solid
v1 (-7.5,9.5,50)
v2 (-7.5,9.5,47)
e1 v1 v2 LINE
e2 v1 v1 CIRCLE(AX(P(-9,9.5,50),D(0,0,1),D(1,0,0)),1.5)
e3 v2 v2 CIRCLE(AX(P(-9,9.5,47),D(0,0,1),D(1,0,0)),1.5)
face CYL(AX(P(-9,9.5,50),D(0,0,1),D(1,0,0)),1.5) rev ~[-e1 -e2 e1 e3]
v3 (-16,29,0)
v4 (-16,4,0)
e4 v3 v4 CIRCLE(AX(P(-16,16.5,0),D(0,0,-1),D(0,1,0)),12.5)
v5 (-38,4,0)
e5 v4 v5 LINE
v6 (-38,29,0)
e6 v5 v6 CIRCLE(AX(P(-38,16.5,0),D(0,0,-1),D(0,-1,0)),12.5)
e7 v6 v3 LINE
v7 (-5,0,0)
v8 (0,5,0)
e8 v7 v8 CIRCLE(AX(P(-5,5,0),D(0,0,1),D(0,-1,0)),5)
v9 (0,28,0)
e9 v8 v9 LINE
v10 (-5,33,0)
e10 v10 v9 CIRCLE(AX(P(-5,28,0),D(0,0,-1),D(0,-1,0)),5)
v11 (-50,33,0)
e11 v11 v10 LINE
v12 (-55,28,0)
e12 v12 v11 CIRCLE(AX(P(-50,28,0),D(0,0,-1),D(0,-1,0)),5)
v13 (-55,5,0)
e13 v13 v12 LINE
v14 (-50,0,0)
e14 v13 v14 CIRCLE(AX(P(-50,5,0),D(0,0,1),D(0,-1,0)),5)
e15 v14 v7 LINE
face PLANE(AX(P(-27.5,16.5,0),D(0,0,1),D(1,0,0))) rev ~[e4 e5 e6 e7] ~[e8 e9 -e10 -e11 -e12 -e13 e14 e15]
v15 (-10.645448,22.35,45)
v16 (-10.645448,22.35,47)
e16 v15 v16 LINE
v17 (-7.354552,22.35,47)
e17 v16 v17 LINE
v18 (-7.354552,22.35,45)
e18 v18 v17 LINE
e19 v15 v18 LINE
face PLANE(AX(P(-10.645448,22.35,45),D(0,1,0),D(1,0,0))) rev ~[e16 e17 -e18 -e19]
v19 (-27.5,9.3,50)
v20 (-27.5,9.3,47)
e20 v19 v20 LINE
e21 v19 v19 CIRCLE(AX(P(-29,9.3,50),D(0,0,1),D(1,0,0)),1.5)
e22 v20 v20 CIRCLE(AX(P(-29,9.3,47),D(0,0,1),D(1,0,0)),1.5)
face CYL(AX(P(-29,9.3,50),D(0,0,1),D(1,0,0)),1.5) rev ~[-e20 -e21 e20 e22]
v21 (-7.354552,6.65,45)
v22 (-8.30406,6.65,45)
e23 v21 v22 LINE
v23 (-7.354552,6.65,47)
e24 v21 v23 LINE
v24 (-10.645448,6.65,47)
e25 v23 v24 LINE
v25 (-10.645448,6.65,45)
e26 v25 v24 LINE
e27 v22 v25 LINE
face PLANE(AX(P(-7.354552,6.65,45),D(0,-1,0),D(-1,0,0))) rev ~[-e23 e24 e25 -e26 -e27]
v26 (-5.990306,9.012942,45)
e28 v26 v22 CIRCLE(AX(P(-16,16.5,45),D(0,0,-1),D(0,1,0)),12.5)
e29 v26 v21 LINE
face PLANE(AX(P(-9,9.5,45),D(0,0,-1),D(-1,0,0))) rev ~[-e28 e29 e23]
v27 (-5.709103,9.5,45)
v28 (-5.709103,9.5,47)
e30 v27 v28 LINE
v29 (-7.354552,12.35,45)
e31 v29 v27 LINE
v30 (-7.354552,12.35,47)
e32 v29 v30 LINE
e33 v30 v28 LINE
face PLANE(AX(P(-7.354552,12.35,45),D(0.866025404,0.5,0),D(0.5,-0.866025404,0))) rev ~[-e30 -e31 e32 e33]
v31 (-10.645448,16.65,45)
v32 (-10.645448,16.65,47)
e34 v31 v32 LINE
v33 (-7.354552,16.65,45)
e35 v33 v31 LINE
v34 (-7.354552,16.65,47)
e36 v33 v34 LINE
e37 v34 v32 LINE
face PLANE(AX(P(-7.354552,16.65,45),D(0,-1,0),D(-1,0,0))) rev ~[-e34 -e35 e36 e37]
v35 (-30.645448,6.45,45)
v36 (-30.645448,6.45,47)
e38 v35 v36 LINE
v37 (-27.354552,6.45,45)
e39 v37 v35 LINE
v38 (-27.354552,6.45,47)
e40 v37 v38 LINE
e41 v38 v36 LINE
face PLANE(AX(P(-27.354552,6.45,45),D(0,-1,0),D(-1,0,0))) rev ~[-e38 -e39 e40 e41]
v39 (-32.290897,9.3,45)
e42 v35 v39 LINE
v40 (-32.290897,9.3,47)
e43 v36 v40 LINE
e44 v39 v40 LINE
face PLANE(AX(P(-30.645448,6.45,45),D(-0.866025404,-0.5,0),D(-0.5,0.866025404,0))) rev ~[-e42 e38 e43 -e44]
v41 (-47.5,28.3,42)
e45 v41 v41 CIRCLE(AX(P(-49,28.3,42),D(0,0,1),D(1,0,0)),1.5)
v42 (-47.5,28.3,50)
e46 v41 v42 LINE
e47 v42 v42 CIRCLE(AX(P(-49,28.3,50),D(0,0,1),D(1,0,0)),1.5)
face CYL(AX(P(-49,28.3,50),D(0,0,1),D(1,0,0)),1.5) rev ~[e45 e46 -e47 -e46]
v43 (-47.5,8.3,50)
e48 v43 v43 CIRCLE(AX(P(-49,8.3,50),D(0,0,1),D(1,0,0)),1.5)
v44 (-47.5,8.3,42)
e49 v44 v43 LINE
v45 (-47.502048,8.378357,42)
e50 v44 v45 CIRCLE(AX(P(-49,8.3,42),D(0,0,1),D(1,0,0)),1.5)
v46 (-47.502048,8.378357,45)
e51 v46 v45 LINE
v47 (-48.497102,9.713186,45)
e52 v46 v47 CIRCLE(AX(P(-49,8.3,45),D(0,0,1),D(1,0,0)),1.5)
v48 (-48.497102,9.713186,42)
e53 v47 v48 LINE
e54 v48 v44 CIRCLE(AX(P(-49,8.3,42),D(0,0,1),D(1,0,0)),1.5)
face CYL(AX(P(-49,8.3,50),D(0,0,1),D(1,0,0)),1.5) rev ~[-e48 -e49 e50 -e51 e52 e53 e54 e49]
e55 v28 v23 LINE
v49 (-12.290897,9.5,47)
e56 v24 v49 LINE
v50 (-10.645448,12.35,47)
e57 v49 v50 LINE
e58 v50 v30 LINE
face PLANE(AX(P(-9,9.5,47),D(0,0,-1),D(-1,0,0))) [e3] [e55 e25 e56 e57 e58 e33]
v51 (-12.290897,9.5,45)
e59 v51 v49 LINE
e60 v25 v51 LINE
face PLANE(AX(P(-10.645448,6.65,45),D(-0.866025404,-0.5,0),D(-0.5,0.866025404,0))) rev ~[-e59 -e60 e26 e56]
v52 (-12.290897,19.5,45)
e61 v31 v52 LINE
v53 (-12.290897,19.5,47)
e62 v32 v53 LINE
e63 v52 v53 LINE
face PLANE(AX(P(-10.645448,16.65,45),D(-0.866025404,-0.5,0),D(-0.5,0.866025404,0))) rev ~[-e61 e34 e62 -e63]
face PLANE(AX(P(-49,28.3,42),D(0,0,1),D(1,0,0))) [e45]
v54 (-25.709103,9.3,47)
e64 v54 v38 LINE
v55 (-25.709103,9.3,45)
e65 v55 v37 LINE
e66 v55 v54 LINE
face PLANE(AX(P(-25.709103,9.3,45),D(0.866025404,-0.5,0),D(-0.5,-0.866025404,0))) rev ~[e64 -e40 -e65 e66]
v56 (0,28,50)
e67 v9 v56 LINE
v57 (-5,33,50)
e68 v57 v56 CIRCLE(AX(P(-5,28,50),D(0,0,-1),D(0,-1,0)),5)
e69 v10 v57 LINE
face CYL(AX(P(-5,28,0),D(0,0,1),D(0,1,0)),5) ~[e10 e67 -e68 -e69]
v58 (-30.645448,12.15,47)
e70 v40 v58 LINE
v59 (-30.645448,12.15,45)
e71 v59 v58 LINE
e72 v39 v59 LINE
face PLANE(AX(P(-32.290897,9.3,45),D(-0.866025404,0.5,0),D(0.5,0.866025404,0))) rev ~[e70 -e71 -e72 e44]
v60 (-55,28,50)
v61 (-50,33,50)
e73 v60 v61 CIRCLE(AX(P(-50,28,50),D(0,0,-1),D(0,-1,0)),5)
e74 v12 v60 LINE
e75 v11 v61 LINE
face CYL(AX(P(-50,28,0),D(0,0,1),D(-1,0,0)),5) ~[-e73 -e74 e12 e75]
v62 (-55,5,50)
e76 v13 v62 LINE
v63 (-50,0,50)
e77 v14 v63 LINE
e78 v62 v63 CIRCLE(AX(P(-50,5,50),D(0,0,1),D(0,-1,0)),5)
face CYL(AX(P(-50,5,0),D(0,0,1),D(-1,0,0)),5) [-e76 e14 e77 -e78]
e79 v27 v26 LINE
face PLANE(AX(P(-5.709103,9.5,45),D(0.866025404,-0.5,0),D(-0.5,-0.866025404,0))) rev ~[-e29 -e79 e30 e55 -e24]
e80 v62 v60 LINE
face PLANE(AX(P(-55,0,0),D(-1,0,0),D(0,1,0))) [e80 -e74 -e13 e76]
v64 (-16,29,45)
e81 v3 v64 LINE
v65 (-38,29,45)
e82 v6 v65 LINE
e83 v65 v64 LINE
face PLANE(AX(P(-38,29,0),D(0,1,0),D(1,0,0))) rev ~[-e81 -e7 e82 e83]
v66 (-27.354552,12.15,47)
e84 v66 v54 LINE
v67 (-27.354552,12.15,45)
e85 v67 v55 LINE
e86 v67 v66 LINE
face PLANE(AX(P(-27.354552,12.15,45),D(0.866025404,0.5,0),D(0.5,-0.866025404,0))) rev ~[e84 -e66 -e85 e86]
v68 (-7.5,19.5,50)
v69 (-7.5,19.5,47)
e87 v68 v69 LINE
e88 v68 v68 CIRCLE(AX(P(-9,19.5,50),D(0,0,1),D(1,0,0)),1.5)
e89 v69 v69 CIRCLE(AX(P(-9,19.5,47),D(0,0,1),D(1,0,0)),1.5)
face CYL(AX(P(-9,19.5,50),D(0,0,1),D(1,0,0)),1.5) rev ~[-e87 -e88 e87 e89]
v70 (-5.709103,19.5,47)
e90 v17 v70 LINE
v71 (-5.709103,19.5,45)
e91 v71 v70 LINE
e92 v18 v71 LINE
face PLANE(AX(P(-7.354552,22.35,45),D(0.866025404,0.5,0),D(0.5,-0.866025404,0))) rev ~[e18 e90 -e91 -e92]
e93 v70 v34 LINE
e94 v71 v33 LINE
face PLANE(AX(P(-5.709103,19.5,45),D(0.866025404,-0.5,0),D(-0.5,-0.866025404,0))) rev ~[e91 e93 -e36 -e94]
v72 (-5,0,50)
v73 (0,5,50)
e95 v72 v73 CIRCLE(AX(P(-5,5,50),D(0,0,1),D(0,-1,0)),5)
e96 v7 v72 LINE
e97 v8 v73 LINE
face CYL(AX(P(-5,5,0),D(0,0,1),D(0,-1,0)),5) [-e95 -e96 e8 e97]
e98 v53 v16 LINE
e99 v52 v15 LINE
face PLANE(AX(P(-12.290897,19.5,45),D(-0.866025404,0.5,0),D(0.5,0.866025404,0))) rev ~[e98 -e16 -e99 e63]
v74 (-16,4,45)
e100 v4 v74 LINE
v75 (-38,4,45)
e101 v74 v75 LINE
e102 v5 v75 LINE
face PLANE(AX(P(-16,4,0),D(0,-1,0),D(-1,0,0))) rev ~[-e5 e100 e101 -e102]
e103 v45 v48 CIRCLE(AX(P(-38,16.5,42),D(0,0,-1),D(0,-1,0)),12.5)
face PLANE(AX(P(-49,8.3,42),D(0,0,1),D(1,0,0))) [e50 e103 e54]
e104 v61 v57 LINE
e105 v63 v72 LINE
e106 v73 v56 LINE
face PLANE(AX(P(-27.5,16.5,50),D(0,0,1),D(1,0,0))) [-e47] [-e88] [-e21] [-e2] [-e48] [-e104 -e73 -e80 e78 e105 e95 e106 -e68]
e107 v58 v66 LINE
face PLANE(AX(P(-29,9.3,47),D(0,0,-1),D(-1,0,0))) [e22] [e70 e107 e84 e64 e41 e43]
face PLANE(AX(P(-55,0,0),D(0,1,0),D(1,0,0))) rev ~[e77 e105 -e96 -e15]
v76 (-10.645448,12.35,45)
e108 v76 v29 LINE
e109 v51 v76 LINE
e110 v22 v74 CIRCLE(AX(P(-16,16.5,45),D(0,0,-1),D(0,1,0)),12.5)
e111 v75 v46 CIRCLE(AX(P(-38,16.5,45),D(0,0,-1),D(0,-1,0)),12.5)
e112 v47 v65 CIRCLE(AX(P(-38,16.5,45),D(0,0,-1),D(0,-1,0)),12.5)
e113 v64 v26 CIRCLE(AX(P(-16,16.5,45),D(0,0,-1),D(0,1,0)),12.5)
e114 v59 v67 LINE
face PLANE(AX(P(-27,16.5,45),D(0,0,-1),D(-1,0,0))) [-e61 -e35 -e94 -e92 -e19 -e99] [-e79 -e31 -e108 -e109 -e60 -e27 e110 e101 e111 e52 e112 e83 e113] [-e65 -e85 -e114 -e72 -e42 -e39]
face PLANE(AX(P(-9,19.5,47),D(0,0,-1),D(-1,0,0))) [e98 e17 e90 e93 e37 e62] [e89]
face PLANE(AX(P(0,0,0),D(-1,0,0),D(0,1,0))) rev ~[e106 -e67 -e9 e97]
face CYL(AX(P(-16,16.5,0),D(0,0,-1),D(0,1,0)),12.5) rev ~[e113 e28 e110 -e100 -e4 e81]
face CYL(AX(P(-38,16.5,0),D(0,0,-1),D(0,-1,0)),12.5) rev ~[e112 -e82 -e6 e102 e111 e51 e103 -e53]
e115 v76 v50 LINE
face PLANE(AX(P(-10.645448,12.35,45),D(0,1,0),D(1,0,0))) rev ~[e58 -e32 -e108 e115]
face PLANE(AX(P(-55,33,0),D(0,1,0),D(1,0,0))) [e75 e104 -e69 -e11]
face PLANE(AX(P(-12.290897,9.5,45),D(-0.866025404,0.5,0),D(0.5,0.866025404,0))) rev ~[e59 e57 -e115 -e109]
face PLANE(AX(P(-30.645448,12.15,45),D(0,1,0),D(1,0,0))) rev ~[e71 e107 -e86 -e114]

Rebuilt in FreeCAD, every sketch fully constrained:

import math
import FreeCAD as App
import Part
import Sketcher
Q = App.Units.Quantity


def edges_at(feature, points):
    """Names of the edges that pass closest to the given points."""
    edges = feature.Shape.Edges
    near = lambda p: min(range(len(edges)), key=lambda i: edges[i].distToShape(Part.Vertex(*p))[0])
    return sorted({f"Edge{near(p) + 1}" for p in points})

doc = App.newDocument("Part")
body = doc.addObject("PartDesign::Body", "Body")

# Sketch on XY plane
sketch1 = doc.addObject("Sketcher::SketchObject", "Sketch")
body.addObject(sketch1)
sketch1.AttachmentSupport = (doc.XY_Plane, [""])
sketch1.MapMode = "FlatFace"
sketch1.addGeometry(Part.LineSegment(App.Vector(-55, 33, 0), App.Vector(-55, 0, 0)), False)
sketch1.addGeometry(Part.LineSegment(App.Vector(-55, 0, 0), App.Vector(0, 0, 0)), False)
sketch1.addGeometry(Part.LineSegment(App.Vector(0, 0, 0), App.Vector(0, 33, 0)), False)
sketch1.addGeometry(Part.LineSegment(App.Vector(0, 33, 0), App.Vector(-55, 33, 0)), False)
sketch1.addConstraint(Sketcher.Constraint("Coincident", 0, 2, 1, 1))
sketch1.addConstraint(Sketcher.Constraint("Coincident", 1, 2, 2, 1))
sketch1.addConstraint(Sketcher.Constraint("Coincident", 2, 2, 3, 1))
sketch1.addConstraint(Sketcher.Constraint("Coincident", 3, 2, 0, 1))
sketch1.addConstraint(Sketcher.Constraint("Vertical", 0))
sketch1.addConstraint(Sketcher.Constraint("Horizontal", 1))
sketch1.addConstraint(Sketcher.Constraint("Vertical", 2))
sketch1.addConstraint(Sketcher.Constraint("Horizontal", 3))
sketch1.addConstraint(Sketcher.Constraint("Coincident", 1, 2, -1, 1))
sketch1.addConstraint(Sketcher.Constraint("DistanceX", 1, 1, 1, 2, 55.0))
sketch1.addConstraint(Sketcher.Constraint("DistanceY", 0, 2, 0, 1, 33.0))
pad1 = doc.addObject("PartDesign::Pad", "Pad")
body.addObject(pad1)
pad1.Profile = sketch1
pad1.Length = 50

# Sketch on XY plane
sketch2 = doc.addObject("Sketcher::SketchObject", "Sketch001")
body.addObject(sketch2)
sketch2.AttachmentSupport = (doc.XY_Plane, [""])
sketch2.MapMode = "FlatFace"
sketch2.addGeometry(Part.LineSegment(App.Vector(-16, 29, 0), App.Vector(-38, 29, 0)), False)
sketch2.addGeometry(Part.ArcOfCircle(Part.Circle(App.Vector(-38, 16, 0), App.Vector(0, 0, 1), 12), math.radians(90), math.radians(270)), False)
sketch2.addGeometry(Part.LineSegment(App.Vector(-38, 4, 0), App.Vector(-16, 4, 0)), False)
sketch2.addGeometry(Part.ArcOfCircle(Part.Circle(App.Vector(-16, 16, 0), App.Vector(0, 0, 1), 12), math.radians(-90), math.radians(90)), False)
sketch2.addConstraint(Sketcher.Constraint("Tangent", 0, 2, 1, 1))
sketch2.addConstraint(Sketcher.Constraint("Tangent", 1, 2, 2, 1))
sketch2.addConstraint(Sketcher.Constraint("Tangent", 2, 2, 3, 1))
sketch2.addConstraint(Sketcher.Constraint("Tangent", 3, 2, 0, 1))
sketch2.addConstraint(Sketcher.Constraint("Horizontal", 0))
sketch2.addConstraint(Sketcher.Constraint("Horizontal", 2))
sketch2.addConstraint(Sketcher.Constraint("Radius", 1, 12.5))
sketch2.addConstraint(Sketcher.Constraint("DistanceX", 0, 2, 0, 1, 22.0))
sketch2.addConstraint(Sketcher.Constraint("DistanceX", 1, 3, -1, 1, 38.0))
sketch2.addConstraint(Sketcher.Constraint("DistanceY", -1, 1, 0, 2, 29.0))
pocket1 = doc.addObject("PartDesign::Pocket", "Pocket")
body.addObject(pocket1)
pocket1.Profile = sketch2
pocket1.Length = 45
pocket1.Reversed = True
doc.recompute()

fillet = doc.addObject("PartDesign::Fillet", "Fillet")
body.addObject(fillet)
fillet.Base = (pocket1, edges_at(pocket1, [
    (0, 0, 25),
    (-55, 0, 25),
    (-55, 33, 25),
    (0, 33, 25),
]))
fillet.Radius = 5

# Sketch on XY plane
sketch3 = doc.addObject("Sketcher::SketchObject", "Sketch002")
body.addObject(sketch3)
sketch3.AttachmentSupport = (doc.XY_Plane, [""])
sketch3.MapMode = "FlatFace"
sketch3.AttachmentOffset = App.Placement(App.Vector(0, 0, 50), App.Rotation())
sketch3.addGeometry(Part.Circle(App.Vector(-29, 9.3, 0), App.Vector(0, 0, 1), 1.5), False)
sketch3.addGeometry(Part.Circle(App.Vector(-9, 19.5, 0), App.Vector(0, 0, 1), 1.5), False)
sketch3.addGeometry(Part.Circle(App.Vector(-9, 9.5, 0), App.Vector(0, 0, 1), 1.5), False)
sketch3.addConstraint(Sketcher.Constraint("Equal", 0, 1))
sketch3.addConstraint(Sketcher.Constraint("Equal", 1, 2))
sketch3.addConstraint(Sketcher.Constraint("Vertical", 1, 3, 2, 3))
sketch3.addConstraint(Sketcher.Constraint("Diameter", 0, 3.0))
sketch3.addConstraint(Sketcher.Constraint("DistanceX", 0, 3, -1, 1, 29.0))
sketch3.addConstraint(Sketcher.Constraint("DistanceX", 1, 3, -1, 1, 9.0))
sketch3.addConstraint(Sketcher.Constraint("DistanceY", 2, 3, 1, 3, 10.0))
sketch3.addConstraint(Sketcher.Constraint("DistanceY", -1, 1, 0, 3, 9.3))
sketch3.addConstraint(Sketcher.Constraint("DistanceY", -1, 1, 1, 3, 19.5))
pocket2 = doc.addObject("PartDesign::Pocket", "Pocket001")
body.addObject(pocket2)
pocket2.Profile = sketch3
pocket2.Length = 10

# Sketch on XY plane
sketch4 = doc.addObject("Sketcher::SketchObject", "Sketch003")
body.addObject(sketch4)
sketch4.AttachmentSupport = (doc.XY_Plane, [""])
sketch4.MapMode = "FlatFace"
sketch4.AttachmentOffset = App.Placement(App.Vector(0, 0, 45), App.Rotation())
sketch4.addGeometry(Part.LineSegment(App.Vector(-27.4, 6.5, 0), App.Vector(-30.6, 6.5, 0)), False)
sketch4.addGeometry(Part.LineSegment(App.Vector(-30.6, 6.5, 0), App.Vector(-32.3, 9.3, 0)), False)
sketch4.addGeometry(Part.LineSegment(App.Vector(-32.3, 9.3, 0), App.Vector(-30.6, 12.2, 0)), False)
sketch4.addGeometry(Part.LineSegment(App.Vector(-30.6, 12.2, 0), App.Vector(-27.4, 12.2, 0)), False)
sketch4.addGeometry(Part.LineSegment(App.Vector(-27.4, 12.2, 0), App.Vector(-25.7, 9.3, 0)), False)
sketch4.addGeometry(Part.LineSegment(App.Vector(-25.7, 9.3, 0), App.Vector(-27.4, 6.5, 0)), False)
sketch4.addGeometry(Part.LineSegment(App.Vector(-7.4, 6.7, 0), App.Vector(-10.6, 6.7, 0)), False)
sketch4.addGeometry(Part.LineSegment(App.Vector(-10.6, 6.7, 0), App.Vector(-12.3, 9.5, 0)), False)
sketch4.addGeometry(Part.LineSegment(App.Vector(-12.3, 9.5, 0), App.Vector(-10.6, 12.3, 0)), False)
sketch4.addGeometry(Part.LineSegment(App.Vector(-10.6, 12.3, 0), App.Vector(-7.4, 12.3, 0)), False)
sketch4.addGeometry(Part.LineSegment(App.Vector(-7.4, 12.3, 0), App.Vector(-5.7, 9.5, 0)), False)
sketch4.addGeometry(Part.LineSegment(App.Vector(-5.7, 9.5, 0), App.Vector(-7.4, 6.7, 0)), False)
sketch4.addGeometry(Part.LineSegment(App.Vector(-7.4, 16.6, 0), App.Vector(-10.6, 16.6, 0)), False)
sketch4.addGeometry(Part.LineSegment(App.Vector(-10.6, 16.6, 0), App.Vector(-12.3, 19.5, 0)), False)
sketch4.addGeometry(Part.LineSegment(App.Vector(-12.3, 19.5, 0), App.Vector(-10.6, 22.4, 0)), False)
sketch4.addGeometry(Part.LineSegment(App.Vector(-10.6, 22.4, 0), App.Vector(-7.4, 22.4, 0)), False)
sketch4.addGeometry(Part.LineSegment(App.Vector(-7.4, 22.4, 0), App.Vector(-5.7, 19.5, 0)), False)
sketch4.addGeometry(Part.LineSegment(App.Vector(-5.7, 19.5, 0), App.Vector(-7.4, 16.6, 0)), False)
sketch4.addConstraint(Sketcher.Constraint("Coincident", 0, 2, 1, 1))
sketch4.addConstraint(Sketcher.Constraint("Coincident", 1, 2, 2, 1))
sketch4.addConstraint(Sketcher.Constraint("Coincident", 2, 2, 3, 1))
sketch4.addConstraint(Sketcher.Constraint("Coincident", 3, 2, 4, 1))
sketch4.addConstraint(Sketcher.Constraint("Coincident", 4, 2, 5, 1))
sketch4.addConstraint(Sketcher.Constraint("Coincident", 5, 2, 0, 1))
sketch4.addConstraint(Sketcher.Constraint("Coincident", 6, 2, 7, 1))
sketch4.addConstraint(Sketcher.Constraint("Coincident", 7, 2, 8, 1))
sketch4.addConstraint(Sketcher.Constraint("Coincident", 8, 2, 9, 1))
sketch4.addConstraint(Sketcher.Constraint("Coincident", 9, 2, 10, 1))
sketch4.addConstraint(Sketcher.Constraint("Coincident", 10, 2, 11, 1))
sketch4.addConstraint(Sketcher.Constraint("Coincident", 11, 2, 6, 1))
sketch4.addConstraint(Sketcher.Constraint("Coincident", 12, 2, 13, 1))
sketch4.addConstraint(Sketcher.Constraint("Coincident", 13, 2, 14, 1))
sketch4.addConstraint(Sketcher.Constraint("Coincident", 14, 2, 15, 1))
sketch4.addConstraint(Sketcher.Constraint("Coincident", 15, 2, 16, 1))
sketch4.addConstraint(Sketcher.Constraint("Coincident", 16, 2, 17, 1))
sketch4.addConstraint(Sketcher.Constraint("Coincident", 17, 2, 12, 1))
sketch4.addConstraint(Sketcher.Constraint("Horizontal", 0))
sketch4.addConstraint(Sketcher.Constraint("Horizontal", 3))
sketch4.addConstraint(Sketcher.Constraint("Horizontal", 6))
sketch4.addConstraint(Sketcher.Constraint("Horizontal", 9))
sketch4.addConstraint(Sketcher.Constraint("Horizontal", 12))
sketch4.addConstraint(Sketcher.Constraint("Horizontal", 15))
sketch4.addConstraint(Sketcher.Constraint("Parallel", 1, 4))
sketch4.addConstraint(Sketcher.Constraint("Parallel", 2, 5))
sketch4.addConstraint(Sketcher.Constraint("Parallel", 4, 7))
sketch4.addConstraint(Sketcher.Constraint("Parallel", 5, 8))
sketch4.addConstraint(Sketcher.Constraint("Parallel", 7, 10))
sketch4.addConstraint(Sketcher.Constraint("Parallel", 8, 11))
sketch4.addConstraint(Sketcher.Constraint("Parallel", 10, 13))
sketch4.addConstraint(Sketcher.Constraint("Parallel", 11, 14))
sketch4.addConstraint(Sketcher.Constraint("Parallel", 13, 16))
sketch4.addConstraint(Sketcher.Constraint("Parallel", 14, 17))
sketch4.addConstraint(Sketcher.Constraint("Horizontal", 1, 2, 4, 2))
sketch4.addConstraint(Sketcher.Constraint("Horizontal", 7, 2, 10, 2))
sketch4.addConstraint(Sketcher.Constraint("Horizontal", 13, 2, 16, 2))
sketch4.addConstraint(Sketcher.Constraint("Vertical", 0, 2, 2, 2))
sketch4.addConstraint(Sketcher.Constraint("Vertical", 3, 2, 5, 2))
sketch4.addConstraint(Sketcher.Constraint("Vertical", 6, 2, 8, 2))
sketch4.addConstraint(Sketcher.Constraint("Vertical", 8, 2, 12, 2))
sketch4.addConstraint(Sketcher.Constraint("Vertical", 7, 2, 13, 2))
sketch4.addConstraint(Sketcher.Constraint("Vertical", 12, 2, 14, 2))
sketch4.addConstraint(Sketcher.Constraint("Vertical", 11, 2, 15, 2))
sketch4.addConstraint(Sketcher.Constraint("Equal", 3, 6))
sketch4.addConstraint(Sketcher.Constraint("Equal", 5, 7))
sketch4.addConstraint(Sketcher.Constraint("Angle", 1, Q("120 deg")))
sketch4.addConstraint(Sketcher.Constraint("DistanceX", 0, 2, 6, 2, 20.0))
sketch4.addConstraint(Sketcher.Constraint("DistanceY", 6, 2, 12, 2, 10.0))
sketch4.addConstraint(Sketcher.Constraint("DistanceY", -1, 1, 1, 2, 9.3))
sketch4.addConstraint(Sketcher.Constraint("DistanceY", -1, 1, 7, 2, 9.5))
sketch4.addConstraint(Sketcher.Constraint("DistanceY", 0, 2, 2, 2, 5.7))
sketch4.addConstraint(Sketcher.Constraint("DistanceX", 0, 2, 0, 1, 3.290897))
sketch4.addConstraint(Sketcher.Constraint("DistanceX", 0, 2, -1, 1, 30.645448))
pocket3 = doc.addObject("PartDesign::Pocket", "Pocket002")
body.addObject(pocket3)
pocket3.Profile = sketch4
pocket3.Length = 2
pocket3.Reversed = True

# Sketch on XY plane
sketch5 = doc.addObject("Sketcher::SketchObject", "Sketch004")
body.addObject(sketch5)
sketch5.AttachmentSupport = (doc.XY_Plane, [""])
sketch5.MapMode = "FlatFace"
sketch5.AttachmentOffset = App.Placement(App.Vector(0, 0, 50), App.Rotation())
sketch5.addGeometry(Part.Circle(App.Vector(-49, 28.3, 0), App.Vector(0, 0, 1), 1.5), False)
sketch5.addGeometry(Part.Circle(App.Vector(-49, 8.3, 0), App.Vector(0, 0, 1), 1.5), False)
sketch5.addConstraint(Sketcher.Constraint("Equal", 0, 1))
sketch5.addConstraint(Sketcher.Constraint("Vertical", 0, 3, 1, 3))
sketch5.addConstraint(Sketcher.Constraint("Diameter", 0, 3.0))
sketch5.addConstraint(Sketcher.Constraint("DistanceX", 0, 3, -1, 1, 49.0))
sketch5.addConstraint(Sketcher.Constraint("DistanceY", 1, 3, 0, 3, 20.0))
sketch5.addConstraint(Sketcher.Constraint("DistanceY", -1, 1, 0, 3, 28.3))
pocket4 = doc.addObject("PartDesign::Pocket", "Pocket003")
body.addObject(pocket4)
pocket4.Profile = sketch5
pocket4.Length = 4

# Sketch on XY plane
sketch6 = doc.addObject("Sketcher::SketchObject", "Sketch005")
body.addObject(sketch6)
sketch6.AttachmentSupport = (doc.XY_Plane, [""])
sketch6.MapMode = "FlatFace"
sketch6.AttachmentOffset = App.Placement(App.Vector(0, 0, 46), App.Rotation())
sketch6.addGeometry(Part.Circle(App.Vector(-49, 28.3, 0), App.Vector(0, 0, 1), 1.5), False)
sketch6.addGeometry(Part.Circle(App.Vector(-49, 8.3, 0), App.Vector(0, 0, 1), 1.5), False)
sketch6.addConstraint(Sketcher.Constraint("Equal", 0, 1))
sketch6.addConstraint(Sketcher.Constraint("Vertical", 0, 3, 1, 3))
sketch6.addConstraint(Sketcher.Constraint("Diameter", 0, 3.0))
sketch6.addConstraint(Sketcher.Constraint("DistanceX", 0, 3, -1, 1, 49.0))
sketch6.addConstraint(Sketcher.Constraint("DistanceY", 1, 3, 0, 3, 20.0))
sketch6.addConstraint(Sketcher.Constraint("DistanceY", -1, 1, 0, 3, 28.3))
pocket5 = doc.addObject("PartDesign::Pocket", "Pocket004")
body.addObject(pocket5)
pocket5.Profile = sketch6
pocket5.Length = 4

doc.recompute()
